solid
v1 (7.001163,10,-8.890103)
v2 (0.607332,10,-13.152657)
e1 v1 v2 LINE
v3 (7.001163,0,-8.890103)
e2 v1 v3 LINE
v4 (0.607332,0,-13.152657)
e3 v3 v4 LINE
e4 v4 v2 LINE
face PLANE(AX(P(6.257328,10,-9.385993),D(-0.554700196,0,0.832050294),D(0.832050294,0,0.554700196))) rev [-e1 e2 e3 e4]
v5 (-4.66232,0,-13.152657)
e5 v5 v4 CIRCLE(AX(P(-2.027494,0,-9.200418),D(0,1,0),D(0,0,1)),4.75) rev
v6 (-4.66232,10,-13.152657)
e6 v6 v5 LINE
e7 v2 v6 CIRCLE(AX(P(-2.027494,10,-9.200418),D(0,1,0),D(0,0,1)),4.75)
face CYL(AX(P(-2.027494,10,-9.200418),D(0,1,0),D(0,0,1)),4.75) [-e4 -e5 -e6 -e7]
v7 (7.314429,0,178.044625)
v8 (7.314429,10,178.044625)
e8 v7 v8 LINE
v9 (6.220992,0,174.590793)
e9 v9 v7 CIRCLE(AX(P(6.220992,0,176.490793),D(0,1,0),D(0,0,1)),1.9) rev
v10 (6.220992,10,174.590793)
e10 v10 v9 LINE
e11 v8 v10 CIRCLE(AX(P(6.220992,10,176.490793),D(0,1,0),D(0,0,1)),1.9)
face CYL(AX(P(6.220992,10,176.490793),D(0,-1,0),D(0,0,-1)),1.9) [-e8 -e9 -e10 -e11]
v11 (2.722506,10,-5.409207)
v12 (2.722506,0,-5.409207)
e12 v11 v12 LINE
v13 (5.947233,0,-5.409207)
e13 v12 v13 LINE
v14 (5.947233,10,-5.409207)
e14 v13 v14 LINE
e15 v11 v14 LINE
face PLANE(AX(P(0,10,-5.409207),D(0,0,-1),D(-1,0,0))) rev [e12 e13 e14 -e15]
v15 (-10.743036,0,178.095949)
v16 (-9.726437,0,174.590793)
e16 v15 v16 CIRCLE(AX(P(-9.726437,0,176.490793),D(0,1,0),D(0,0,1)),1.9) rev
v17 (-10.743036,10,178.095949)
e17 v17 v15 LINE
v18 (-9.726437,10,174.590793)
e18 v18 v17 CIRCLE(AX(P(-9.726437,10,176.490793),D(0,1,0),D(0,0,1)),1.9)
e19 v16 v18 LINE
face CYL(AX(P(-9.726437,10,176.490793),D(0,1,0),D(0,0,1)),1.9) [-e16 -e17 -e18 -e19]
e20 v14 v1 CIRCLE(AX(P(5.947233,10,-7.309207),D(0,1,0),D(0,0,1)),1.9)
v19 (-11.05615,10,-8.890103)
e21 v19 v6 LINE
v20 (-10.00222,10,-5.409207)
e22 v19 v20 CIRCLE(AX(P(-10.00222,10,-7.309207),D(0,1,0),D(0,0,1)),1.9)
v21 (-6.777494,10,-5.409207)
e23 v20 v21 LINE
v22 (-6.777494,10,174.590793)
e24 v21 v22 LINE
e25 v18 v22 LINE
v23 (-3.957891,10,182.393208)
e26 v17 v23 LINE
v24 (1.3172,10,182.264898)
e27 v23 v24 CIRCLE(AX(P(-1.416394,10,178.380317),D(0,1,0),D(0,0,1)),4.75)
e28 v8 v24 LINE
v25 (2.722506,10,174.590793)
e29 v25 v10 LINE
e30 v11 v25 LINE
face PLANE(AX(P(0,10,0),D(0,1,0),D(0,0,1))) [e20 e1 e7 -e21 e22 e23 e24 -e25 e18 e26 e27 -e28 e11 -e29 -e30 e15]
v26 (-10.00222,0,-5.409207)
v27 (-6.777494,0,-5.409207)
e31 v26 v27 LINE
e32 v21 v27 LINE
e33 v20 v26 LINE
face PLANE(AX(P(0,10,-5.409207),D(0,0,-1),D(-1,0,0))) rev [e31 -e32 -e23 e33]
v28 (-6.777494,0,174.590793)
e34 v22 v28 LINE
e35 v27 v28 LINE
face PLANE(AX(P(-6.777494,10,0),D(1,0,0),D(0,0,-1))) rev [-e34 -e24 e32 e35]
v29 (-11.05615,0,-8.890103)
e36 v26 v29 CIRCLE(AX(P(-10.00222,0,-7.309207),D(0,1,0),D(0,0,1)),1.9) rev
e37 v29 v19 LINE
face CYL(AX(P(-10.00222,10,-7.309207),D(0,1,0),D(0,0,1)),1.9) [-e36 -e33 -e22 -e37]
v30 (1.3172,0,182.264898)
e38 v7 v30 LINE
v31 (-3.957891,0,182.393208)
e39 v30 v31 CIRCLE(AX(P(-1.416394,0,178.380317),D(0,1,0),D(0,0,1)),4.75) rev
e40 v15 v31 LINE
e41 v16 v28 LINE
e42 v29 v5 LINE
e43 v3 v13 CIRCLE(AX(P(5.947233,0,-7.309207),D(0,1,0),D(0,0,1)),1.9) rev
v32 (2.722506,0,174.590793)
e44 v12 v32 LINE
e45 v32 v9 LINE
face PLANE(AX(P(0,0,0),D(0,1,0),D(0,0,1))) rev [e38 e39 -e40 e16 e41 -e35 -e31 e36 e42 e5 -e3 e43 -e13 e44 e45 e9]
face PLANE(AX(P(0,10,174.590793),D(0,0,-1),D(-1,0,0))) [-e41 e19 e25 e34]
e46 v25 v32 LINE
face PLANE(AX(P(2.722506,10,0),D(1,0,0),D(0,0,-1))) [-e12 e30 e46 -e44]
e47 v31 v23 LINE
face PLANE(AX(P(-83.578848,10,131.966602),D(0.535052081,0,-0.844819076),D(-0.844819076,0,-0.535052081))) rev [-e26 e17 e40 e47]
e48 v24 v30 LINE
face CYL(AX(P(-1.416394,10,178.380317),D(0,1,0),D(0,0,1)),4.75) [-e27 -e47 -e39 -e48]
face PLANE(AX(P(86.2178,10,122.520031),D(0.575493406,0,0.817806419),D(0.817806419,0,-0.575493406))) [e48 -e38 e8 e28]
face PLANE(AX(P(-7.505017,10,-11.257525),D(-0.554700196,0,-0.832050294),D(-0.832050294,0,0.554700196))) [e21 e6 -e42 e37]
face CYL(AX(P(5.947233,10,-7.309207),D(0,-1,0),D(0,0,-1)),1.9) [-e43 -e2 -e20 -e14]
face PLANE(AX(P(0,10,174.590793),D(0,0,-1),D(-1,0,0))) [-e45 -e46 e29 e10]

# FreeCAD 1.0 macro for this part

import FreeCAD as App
import Part
import Sketcher

V = App.Vector


def edges_at(feature, points):
    """Names of the edges that pass closest to the given points."""
    edges = feature.Shape.Edges
    near = lambda p: min(range(len(edges)), key=lambda i: edges[i].distToShape(Part.Vertex(*p))[0])
    return sorted({f"Edge{near(p) + 1}" for p in points})


def add_polygon(sketch, points):
    """Adds a closed chain of lines whose ends are joined by coincident constraints."""
    first, n = sketch.GeometryCount, len(points)
    for a, b in zip(points, points[1:] + points[:1]):
        sketch.addGeometry(Part.LineSegment(App.Vector(*a, 0), App.Vector(*b, 0)), False)
    for i in range(n):
        sketch.addConstraint(Sketcher.Constraint("Coincident", first + i, 2, first + (i + 1) % n, 1))

doc = App.newDocument("Part")
body = doc.addObject("PartDesign::Body", "Body")

# Sketch on XZ plane
sketch1 = doc.addObject("Sketcher::SketchObject", "Sketch")
body.addObject(sketch1)
sketch1.AttachmentSupport = (doc.XZ_Plane, [""])
sketch1.MapMode = "FlatFace"
add_polygon(sketch1, [(-7, -5), (-7, 175), (-16, 175), (-1, 184), (12, 175), (3, 175), (3, -5), (12, -5), (-2, -15), (-16, -5)])  # lines 0-9
sketch1.addConstraint([
    Sketcher.Constraint("Vertical", 0),
    Sketcher.Constraint("Horizontal", 1),
    Sketcher.Constraint("Horizontal", 4),
    Sketcher.Constraint("Vertical", 5),
    Sketcher.Constraint("Horizontal", 6),
    Sketcher.Constraint("Horizontal", 9),
    Sketcher.Constraint("Horizontal", 1, 2, 3, 2),
    Sketcher.Constraint("Horizontal", 6, 2, 8, 2),
    Sketcher.Constraint("Vertical", 3, 2, 6, 2),
    Sketcher.Constraint("Vertical", 1, 2, 8, 2),
    Sketcher.Constraint("Equal", 1, 4),
    Sketcher.Constraint("Equal", 7, 8),
    Sketcher.Constraint("DistanceY", 0, 1, 0, 2, 180.0),
    Sketcher.Constraint("DistanceX", 1, 2, 1, 1, 9.5),
    Sketcher.Constraint("DistanceX", 1, 2, 2, 2, 15.0),
    Sketcher.Constraint("DistanceX", 0, 2, 3, 2, 19.0),
    Sketcher.Constraint("DistanceY", 0, 2, 2, 2, 9.5),
    Sketcher.Constraint("DistanceY", 7, 2, 5, 2, 9.5),
    Sketcher.Constraint("DistanceX", 0, 2, -1, 1, 6.777494),
    Sketcher.Constraint("DistanceY", -1, 1, 0, 2, 174.590793),
])
pad1 = doc.addObject("PartDesign::Pad", "Pad")
body.addObject(pad1)
pad1.Profile = sketch1
pad1.Length = 10
pad1.Reversed = True
doc.recompute()

fillet = doc.addObject("PartDesign::Fillet", "Fillet")
body.addObject(fillet)
fillet.Base = (pad1, edges_at(pad1, [
    (12.223, 5, -5.409),
    (12.223, 5, 174.591),
    (-16.277, 5, 174.591),
    (-16.277, 5, -5.409),
]))
fillet.Radius = 1.9
doc.recompute()

fillet2 = doc.addObject("PartDesign::Fillet", "Fillet001")
body.addObject(fillet2)
fillet2.Base = (fillet, edges_at(fillet, [(-1.277, 5, 184.091), (-2.027, 5, -14.909)]))
fillet2.Radius = 4.75

doc.recompute()
